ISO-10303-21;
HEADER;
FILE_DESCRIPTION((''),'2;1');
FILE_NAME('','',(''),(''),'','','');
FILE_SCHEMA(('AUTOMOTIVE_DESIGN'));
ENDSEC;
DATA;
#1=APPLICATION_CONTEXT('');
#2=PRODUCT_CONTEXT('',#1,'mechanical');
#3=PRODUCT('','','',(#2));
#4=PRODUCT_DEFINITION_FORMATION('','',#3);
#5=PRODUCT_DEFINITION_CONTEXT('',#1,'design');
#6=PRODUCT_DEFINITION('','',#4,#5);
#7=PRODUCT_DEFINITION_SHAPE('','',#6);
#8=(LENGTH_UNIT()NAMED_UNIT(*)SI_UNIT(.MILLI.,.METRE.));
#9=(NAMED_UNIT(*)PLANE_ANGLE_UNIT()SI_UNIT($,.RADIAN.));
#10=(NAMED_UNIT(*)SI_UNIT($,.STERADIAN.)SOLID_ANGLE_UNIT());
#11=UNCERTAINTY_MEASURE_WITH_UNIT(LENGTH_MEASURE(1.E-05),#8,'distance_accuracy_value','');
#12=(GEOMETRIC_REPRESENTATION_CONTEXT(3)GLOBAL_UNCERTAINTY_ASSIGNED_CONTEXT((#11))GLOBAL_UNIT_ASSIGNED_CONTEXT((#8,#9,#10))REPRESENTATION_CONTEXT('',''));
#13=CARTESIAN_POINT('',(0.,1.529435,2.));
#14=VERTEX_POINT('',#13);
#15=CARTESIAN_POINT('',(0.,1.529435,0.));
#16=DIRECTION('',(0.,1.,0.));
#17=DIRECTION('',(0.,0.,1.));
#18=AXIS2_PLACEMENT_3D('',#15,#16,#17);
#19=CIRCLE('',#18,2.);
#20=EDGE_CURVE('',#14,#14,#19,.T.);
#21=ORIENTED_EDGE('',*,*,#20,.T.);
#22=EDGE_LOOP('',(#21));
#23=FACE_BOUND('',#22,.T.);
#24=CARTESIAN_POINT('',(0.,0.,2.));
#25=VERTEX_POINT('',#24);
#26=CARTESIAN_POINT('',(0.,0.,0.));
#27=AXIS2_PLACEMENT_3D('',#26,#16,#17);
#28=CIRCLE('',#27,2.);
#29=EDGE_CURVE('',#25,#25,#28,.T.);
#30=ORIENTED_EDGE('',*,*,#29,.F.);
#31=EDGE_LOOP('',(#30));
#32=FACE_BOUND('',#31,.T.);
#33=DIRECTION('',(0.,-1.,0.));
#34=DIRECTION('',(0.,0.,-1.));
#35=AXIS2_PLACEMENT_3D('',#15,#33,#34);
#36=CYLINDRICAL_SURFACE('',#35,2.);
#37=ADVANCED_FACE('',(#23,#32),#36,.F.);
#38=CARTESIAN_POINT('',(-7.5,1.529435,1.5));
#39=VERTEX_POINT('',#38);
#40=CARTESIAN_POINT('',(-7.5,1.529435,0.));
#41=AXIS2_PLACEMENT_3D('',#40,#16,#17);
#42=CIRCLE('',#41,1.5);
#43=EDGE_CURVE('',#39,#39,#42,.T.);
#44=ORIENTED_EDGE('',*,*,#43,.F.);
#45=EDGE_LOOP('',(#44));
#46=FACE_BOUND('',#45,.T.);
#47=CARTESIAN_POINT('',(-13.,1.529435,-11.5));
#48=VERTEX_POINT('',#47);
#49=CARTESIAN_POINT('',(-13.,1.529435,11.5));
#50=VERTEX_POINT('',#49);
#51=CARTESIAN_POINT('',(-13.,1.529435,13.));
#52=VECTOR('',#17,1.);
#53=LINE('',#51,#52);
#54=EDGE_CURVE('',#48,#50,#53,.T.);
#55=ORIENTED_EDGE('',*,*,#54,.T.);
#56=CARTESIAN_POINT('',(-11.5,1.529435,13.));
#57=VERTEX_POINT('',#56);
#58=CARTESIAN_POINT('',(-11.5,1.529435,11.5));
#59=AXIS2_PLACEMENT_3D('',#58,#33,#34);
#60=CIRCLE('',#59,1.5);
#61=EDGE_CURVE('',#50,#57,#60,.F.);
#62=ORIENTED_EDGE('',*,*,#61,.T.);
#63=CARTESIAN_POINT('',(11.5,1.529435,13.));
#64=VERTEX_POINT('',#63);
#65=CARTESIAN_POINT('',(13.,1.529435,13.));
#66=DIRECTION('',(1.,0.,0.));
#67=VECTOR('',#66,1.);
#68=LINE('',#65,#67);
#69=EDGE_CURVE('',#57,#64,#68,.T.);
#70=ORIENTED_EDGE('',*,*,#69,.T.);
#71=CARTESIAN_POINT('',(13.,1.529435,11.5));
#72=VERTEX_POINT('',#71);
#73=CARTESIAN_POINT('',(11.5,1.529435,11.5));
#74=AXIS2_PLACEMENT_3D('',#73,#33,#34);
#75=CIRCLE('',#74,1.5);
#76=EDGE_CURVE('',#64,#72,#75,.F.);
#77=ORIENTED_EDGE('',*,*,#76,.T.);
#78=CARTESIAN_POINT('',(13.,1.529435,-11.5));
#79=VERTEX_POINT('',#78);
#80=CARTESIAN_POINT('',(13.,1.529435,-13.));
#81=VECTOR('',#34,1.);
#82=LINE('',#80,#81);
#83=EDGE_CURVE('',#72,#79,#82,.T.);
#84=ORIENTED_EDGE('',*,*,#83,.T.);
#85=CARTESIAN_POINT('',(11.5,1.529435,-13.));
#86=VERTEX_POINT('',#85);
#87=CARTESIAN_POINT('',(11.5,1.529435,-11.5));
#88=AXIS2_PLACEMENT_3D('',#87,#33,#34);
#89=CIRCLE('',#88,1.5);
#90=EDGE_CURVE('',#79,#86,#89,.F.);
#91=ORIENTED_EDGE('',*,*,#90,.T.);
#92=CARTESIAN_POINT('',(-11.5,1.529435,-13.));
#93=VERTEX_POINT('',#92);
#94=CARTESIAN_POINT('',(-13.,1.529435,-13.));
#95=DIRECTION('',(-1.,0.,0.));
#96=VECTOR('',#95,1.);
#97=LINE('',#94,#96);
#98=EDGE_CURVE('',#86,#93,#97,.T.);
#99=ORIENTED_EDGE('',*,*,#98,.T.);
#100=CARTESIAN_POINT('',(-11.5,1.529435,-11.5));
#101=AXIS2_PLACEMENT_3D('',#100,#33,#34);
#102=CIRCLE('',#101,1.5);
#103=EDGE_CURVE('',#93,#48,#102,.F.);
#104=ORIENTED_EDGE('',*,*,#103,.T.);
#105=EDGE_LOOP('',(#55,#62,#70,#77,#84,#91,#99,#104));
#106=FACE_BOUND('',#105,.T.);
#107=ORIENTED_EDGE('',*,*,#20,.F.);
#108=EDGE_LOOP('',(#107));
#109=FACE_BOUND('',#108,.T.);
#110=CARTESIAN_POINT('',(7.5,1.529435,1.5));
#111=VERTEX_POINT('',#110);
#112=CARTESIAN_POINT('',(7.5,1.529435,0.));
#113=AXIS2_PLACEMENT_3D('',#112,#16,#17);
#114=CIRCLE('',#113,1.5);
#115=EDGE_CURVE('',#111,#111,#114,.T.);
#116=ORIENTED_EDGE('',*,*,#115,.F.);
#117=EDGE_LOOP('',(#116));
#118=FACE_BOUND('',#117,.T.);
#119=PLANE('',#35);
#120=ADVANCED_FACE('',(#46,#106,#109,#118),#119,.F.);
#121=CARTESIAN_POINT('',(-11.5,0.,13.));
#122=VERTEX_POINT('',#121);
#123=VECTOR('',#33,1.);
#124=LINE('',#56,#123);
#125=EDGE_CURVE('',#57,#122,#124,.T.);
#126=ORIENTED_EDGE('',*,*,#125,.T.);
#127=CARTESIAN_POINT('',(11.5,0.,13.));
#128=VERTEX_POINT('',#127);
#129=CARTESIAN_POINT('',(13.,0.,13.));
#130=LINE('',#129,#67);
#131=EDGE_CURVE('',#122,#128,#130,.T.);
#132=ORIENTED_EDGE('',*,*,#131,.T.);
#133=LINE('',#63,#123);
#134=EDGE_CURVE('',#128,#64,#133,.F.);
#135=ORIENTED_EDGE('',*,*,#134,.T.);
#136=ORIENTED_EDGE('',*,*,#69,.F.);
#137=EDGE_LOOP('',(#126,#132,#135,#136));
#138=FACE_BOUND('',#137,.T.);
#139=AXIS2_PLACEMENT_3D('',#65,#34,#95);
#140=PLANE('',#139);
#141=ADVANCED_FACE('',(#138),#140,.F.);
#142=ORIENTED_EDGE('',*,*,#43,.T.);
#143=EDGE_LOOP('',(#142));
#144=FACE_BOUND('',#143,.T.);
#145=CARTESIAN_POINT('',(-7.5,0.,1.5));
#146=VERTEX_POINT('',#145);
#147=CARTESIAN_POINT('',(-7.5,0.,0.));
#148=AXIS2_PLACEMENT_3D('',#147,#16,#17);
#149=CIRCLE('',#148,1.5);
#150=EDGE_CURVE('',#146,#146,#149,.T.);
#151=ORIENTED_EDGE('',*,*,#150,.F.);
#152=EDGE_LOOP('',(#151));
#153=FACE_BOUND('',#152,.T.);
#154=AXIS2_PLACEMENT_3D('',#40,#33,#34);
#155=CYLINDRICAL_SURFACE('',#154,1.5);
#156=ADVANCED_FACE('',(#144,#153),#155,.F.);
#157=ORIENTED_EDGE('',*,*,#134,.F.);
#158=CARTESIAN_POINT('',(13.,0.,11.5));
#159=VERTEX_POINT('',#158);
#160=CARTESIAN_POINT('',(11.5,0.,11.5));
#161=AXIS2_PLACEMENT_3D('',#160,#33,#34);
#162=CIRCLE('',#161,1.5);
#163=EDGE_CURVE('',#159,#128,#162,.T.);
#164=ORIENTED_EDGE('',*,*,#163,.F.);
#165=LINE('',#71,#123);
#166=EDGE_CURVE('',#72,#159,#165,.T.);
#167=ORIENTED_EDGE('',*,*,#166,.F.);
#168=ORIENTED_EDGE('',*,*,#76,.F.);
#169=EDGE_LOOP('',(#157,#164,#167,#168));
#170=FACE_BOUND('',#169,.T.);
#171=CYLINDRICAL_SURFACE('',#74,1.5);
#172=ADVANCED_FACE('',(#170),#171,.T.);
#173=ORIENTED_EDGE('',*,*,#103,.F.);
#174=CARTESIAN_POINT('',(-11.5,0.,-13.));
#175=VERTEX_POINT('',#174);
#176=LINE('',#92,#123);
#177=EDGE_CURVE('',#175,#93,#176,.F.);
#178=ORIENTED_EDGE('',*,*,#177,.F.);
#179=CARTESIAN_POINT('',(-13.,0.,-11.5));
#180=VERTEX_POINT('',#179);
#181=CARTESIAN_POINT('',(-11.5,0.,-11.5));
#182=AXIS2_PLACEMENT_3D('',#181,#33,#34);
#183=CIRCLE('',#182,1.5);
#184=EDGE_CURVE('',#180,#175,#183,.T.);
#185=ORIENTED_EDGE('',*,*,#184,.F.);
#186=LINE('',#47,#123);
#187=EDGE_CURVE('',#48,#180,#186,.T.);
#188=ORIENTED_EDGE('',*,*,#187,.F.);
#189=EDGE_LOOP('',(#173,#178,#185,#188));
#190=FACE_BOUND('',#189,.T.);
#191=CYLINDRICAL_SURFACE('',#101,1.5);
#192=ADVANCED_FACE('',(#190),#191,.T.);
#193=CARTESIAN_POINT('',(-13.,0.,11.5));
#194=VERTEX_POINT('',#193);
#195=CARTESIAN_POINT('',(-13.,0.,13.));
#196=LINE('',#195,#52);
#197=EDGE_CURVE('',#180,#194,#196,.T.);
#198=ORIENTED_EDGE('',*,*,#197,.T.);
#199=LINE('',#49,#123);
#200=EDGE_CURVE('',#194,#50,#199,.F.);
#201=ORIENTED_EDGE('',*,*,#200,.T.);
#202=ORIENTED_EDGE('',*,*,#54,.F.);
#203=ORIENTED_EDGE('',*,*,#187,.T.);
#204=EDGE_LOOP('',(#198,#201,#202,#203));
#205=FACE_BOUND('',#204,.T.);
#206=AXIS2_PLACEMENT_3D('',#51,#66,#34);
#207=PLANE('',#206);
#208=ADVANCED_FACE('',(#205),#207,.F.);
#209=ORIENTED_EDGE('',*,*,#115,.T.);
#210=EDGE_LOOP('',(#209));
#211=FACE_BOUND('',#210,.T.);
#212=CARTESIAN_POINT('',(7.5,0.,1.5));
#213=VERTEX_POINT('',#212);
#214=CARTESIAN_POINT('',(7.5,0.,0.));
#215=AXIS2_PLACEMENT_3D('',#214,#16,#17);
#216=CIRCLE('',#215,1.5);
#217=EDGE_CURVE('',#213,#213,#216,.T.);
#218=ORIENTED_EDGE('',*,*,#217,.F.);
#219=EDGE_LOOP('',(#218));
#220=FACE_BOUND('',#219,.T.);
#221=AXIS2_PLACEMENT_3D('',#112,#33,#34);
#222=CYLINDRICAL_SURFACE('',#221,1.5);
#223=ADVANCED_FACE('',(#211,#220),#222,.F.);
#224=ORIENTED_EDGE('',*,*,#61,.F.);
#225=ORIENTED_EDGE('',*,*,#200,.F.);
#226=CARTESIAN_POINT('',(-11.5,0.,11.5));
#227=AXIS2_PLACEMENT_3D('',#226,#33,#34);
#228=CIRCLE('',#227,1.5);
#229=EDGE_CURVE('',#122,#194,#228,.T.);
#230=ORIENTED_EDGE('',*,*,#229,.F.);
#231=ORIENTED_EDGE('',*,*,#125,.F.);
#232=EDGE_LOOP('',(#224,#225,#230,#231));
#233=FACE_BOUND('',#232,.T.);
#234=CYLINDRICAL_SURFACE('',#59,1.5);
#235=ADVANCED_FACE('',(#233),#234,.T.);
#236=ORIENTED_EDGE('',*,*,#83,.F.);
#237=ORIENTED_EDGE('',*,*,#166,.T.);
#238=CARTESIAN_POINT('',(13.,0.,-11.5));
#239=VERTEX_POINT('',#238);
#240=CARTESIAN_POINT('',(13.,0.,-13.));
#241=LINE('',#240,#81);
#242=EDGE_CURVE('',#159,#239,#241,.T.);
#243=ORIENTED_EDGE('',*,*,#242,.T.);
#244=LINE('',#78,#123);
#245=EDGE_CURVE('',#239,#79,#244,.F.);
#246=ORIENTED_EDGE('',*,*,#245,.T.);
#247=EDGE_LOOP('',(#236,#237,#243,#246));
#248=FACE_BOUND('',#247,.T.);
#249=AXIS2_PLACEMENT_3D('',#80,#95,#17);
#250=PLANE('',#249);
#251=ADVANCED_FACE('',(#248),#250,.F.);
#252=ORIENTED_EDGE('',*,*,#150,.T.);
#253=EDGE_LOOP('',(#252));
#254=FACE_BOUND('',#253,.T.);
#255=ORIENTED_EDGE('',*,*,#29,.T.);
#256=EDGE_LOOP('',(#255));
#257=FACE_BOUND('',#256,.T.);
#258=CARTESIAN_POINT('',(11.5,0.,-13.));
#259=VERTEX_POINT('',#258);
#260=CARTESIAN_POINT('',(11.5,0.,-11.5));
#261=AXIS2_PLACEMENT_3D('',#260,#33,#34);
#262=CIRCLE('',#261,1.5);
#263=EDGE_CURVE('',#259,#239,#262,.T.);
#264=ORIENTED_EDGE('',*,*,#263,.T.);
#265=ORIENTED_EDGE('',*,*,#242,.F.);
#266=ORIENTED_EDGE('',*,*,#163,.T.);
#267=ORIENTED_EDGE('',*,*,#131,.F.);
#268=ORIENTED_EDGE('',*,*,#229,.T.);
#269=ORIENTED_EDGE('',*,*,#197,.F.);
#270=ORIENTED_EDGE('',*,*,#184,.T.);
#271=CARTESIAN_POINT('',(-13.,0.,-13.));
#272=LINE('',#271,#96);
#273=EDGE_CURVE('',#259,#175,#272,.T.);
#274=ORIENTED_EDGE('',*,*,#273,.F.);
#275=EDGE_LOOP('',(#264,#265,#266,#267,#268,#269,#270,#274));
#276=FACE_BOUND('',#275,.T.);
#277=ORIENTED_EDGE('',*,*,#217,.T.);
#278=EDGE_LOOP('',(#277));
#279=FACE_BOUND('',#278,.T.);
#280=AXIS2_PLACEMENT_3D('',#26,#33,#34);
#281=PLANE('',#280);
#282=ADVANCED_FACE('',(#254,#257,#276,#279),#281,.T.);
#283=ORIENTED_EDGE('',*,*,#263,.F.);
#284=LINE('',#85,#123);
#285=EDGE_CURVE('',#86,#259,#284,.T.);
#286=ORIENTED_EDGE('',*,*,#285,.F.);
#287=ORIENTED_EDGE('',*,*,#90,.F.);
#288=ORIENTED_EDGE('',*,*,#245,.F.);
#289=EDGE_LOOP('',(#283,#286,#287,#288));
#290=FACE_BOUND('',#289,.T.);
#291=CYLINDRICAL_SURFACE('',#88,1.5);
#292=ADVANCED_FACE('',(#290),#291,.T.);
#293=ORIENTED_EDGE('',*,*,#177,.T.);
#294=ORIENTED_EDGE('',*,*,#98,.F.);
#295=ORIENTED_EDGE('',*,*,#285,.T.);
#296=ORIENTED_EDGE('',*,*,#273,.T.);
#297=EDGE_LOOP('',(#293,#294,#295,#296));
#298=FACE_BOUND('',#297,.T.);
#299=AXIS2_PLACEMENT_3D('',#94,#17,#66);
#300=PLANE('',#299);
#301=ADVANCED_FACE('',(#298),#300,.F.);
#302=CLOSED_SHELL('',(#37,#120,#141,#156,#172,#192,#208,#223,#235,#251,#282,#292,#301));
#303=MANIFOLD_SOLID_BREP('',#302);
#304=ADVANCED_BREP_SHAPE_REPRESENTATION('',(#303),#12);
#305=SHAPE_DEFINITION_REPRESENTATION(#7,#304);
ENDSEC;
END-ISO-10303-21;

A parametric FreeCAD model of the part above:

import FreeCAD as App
import Part
import Sketcher
Q = App.Units.Quantity


def edges_at(feature, points):
    """Names of the edges that pass closest to the given points."""
    edges = feature.Shape.Edges
    near = lambda p: min(range(len(edges)), key=lambda i: edges[i].distToShape(Part.Vertex(*p))[0])
    return sorted({f"Edge{near(p) + 1}" for p in points})

doc = App.newDocument("Part")
body = doc.addObject("PartDesign::Body", "Body")

# Sketch on XZ plane
sketch1 = doc.addObject("Sketcher::SketchObject", "Sketch")
body.addObject(sketch1)
sketch1.AttachmentSupport = (doc.XZ_Plane, [""])
sketch1.MapMode = "FlatFace"
sketch1.addGeometry([
    Part.LineSegment(App.Vector(-13, -13, 0), App.Vector(-13, 13, 0)),  # 0
    Part.LineSegment(App.Vector(-13, 13, 0), App.Vector(13, 13, 0)),  # 1
    Part.LineSegment(App.Vector(13, 13, 0), App.Vector(13, -13, 0)),  # 2
    Part.LineSegment(App.Vector(13, -13, 0), App.Vector(-13, -13, 0)),  # 3
    Part.Circle(App.Vector(-7.5, 0, 0), App.Vector(0, 0, 1), 1.5),  # 4
    Part.Circle(App.Vector(0, 0, 0), App.Vector(0, 0, 1), 2),  # 5
    Part.Circle(App.Vector(7.5, 0, 0), App.Vector(0, 0, 1), 1.5),  # 6
], False)
sketch1.addConstraint([
    Sketcher.Constraint("Coincident", 0, 2, 1, 1),
    Sketcher.Constraint("Coincident", 1, 2, 2, 1),
    Sketcher.Constraint("Coincident", 2, 2, 3, 1),
    Sketcher.Constraint("Coincident", 3, 2, 0, 1),
    Sketcher.Constraint("Vertical", 0),
    Sketcher.Constraint("Horizontal", 1),
    Sketcher.Constraint("Vertical", 2),
    Sketcher.Constraint("Horizontal", 3),
    Sketcher.Constraint("Coincident", 5, 3, -1, 1),
    Sketcher.Constraint("Equal", 4, 6),
    Sketcher.Constraint("Symmetric", 4, 3, 6, 3, -1, 1),
    Sketcher.Constraint("Symmetric", 0, 2, 2, 2, -1, 1),
    Sketcher.Constraint("PointOnObject", 4, 3, -1),
    Sketcher.Constraint("Equal", 3, 0),
    Sketcher.Constraint("Diameter", 4, Q("3 mm")),
    Sketcher.Constraint("Diameter", 5, Q("4 mm")),
    Sketcher.Constraint("DistanceX", 1, 1, 1, 2, Q("26 mm")),
    Sketcher.Constraint("DistanceX", 4, 3, 6, 3, Q("15 mm")),
])
pad1 = doc.addObject("PartDesign::Pad", "Pad")
body.addObject(pad1)
pad1.Profile = sketch1
pad1.Length = 1.529435
pad1.Reversed = True
doc.recompute()

fillet = doc.addObject("PartDesign::Fillet", "Fillet")
body.addObject(fillet)
fillet.Base = (pad1, edges_at(pad1, [
    (-13, 0.765, -13),
    (13, 0.765, -13),
    (13, 0.765, 13),
    (-13, 0.765, 13),
]))
fillet.Radius = 1.5

doc.recompute()
